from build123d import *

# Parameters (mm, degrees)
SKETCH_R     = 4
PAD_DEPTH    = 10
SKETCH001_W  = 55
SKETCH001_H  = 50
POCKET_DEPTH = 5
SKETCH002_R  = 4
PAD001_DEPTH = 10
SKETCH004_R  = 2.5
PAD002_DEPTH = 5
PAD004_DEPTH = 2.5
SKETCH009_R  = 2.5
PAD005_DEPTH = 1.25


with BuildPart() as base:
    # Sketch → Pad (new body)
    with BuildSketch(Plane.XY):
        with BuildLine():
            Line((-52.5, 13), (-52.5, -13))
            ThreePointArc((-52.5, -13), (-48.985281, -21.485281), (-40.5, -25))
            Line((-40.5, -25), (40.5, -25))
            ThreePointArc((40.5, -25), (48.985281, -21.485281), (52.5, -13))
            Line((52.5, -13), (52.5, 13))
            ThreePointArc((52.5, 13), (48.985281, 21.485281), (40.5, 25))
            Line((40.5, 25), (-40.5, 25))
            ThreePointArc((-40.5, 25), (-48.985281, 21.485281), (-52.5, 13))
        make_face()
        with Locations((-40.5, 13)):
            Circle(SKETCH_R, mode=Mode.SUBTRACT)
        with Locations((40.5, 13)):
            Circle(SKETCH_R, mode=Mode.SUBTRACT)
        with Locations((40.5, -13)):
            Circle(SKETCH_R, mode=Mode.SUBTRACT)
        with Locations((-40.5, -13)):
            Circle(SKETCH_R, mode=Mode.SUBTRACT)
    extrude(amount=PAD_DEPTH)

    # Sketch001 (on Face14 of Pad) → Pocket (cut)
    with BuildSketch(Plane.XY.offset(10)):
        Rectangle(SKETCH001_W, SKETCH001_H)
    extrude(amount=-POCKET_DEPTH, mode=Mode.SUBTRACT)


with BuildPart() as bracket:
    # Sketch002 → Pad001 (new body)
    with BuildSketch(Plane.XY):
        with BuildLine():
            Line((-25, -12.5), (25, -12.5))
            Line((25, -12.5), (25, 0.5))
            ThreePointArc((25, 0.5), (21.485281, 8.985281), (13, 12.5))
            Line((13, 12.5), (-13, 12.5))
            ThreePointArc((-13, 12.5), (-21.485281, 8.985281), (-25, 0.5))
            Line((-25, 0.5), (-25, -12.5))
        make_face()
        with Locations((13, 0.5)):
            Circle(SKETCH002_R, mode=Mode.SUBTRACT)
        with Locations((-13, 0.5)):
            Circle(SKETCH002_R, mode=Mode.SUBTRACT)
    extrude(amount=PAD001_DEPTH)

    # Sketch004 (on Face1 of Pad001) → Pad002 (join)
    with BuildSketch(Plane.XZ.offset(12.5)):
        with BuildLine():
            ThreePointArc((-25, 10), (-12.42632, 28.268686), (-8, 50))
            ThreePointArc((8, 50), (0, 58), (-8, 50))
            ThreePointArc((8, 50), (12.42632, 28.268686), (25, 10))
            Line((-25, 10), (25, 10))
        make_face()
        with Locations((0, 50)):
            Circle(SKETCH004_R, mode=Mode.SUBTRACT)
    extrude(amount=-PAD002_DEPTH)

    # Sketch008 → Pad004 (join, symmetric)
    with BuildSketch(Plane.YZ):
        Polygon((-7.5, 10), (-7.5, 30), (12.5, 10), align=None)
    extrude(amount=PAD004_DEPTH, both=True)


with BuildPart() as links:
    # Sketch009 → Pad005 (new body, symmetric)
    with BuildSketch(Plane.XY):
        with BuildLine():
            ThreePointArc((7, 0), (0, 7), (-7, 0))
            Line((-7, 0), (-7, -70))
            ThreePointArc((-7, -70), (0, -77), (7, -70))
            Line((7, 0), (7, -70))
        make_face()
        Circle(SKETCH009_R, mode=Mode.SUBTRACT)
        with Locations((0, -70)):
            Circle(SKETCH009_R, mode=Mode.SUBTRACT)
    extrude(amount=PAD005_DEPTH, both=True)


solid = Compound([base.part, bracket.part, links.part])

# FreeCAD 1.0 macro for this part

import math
import FreeCAD as App
import Part
import Sketcher
from FreeCAD import Vector
Q = App.Units.Quantity


def add_polygon(sketch, points):
    """Adds a closed chain of lines whose ends are joined by coincident constraints."""
    first, n = sketch.GeometryCount, len(points)
    for a, b in zip(points, points[1:] + points[:1]):
        sketch.addGeometry(Part.LineSegment(App.Vector(*a, 0), App.Vector(*b, 0)), False)
    for i in range(n):
        sketch.addConstraint(Sketcher.Constraint("Coincident", first + i, 2, first + (i + 1) % n, 1))

doc = App.newDocument("Part")
body = doc.addObject("PartDesign::Body", "Body")

# Sketch on XY plane
sketch1 = body.newObject("Sketcher::SketchObject", "Sketch")
sketch1.AttachmentSupport = (doc.getObject("XY_Plane"), [""])
sketch1.MapMode = "FlatFace"
sketch1.addGeometry([
    Part.LineSegment(Vector(-52.5, 13, 0), Vector(-52.5, -13, 0)),  # 0
    Part.ArcOfCircle(Part.Circle(Vector(-40.499999, -12.999999, 0), Vector(0, 0, 1), 12.000001), math.radians(-179.999994), math.radians(-90.000006)),  # 1
    Part.LineSegment(Vector(-40.5, -25, 0), Vector(40.5, -25, 0)),  # 2
    Part.ArcOfCircle(Part.Circle(Vector(40.499999, -12.999999, 0), Vector(0, 0, 1), 12.000001), math.radians(-89.999994), math.radians(-0.000006)),  # 3
    Part.LineSegment(Vector(52.5, -13, 0), Vector(52.5, 13, 0)),  # 4
    Part.ArcOfCircle(Part.Circle(Vector(40.499999, 12.999999, 0), Vector(0, 0, 1), 12.000001), math.radians(0.000006), math.radians(89.999994)),  # 5
    Part.LineSegment(Vector(40.5, 25, 0), Vector(-40.5, 25, 0)),  # 6
    Part.ArcOfCircle(Part.Circle(Vector(-40.499999, 12.999999, 0), Vector(0, 0, 1), 12.000001), math.radians(90.000006), math.radians(179.999994)),  # 7
    Part.Circle(Vector(-40.5, -13, 0), Vector(0, 0, 1), 4),  # 8
    Part.Circle(Vector(40.5, -13, 0), Vector(0, 0, 1), 4),  # 9
    Part.Circle(Vector(-40.5, 13, 0), Vector(0, 0, 1), 4),  # 10
    Part.Circle(Vector(40.5, 13, 0), Vector(0, 0, 1), 4),  # 11
], False)
sketch1.addConstraint([
    Sketcher.Constraint("Tangent", 0, 2, 1, 1),
    Sketcher.Constraint("Tangent", 1, 2, 2, 1),
    Sketcher.Constraint("Tangent", 2, 2, 3, 1),
    Sketcher.Constraint("Tangent", 3, 2, 4, 1),
    Sketcher.Constraint("Tangent", 4, 2, 5, 1),
    Sketcher.Constraint("Tangent", 5, 2, 6, 1),
    Sketcher.Constraint("Tangent", 6, 2, 7, 1),
    Sketcher.Constraint("Tangent", 7, 2, 0, 1),
    Sketcher.Constraint("Vertical", 0),
    Sketcher.Constraint("Horizontal", 2),
    Sketcher.Constraint("Vertical", 4),
    Sketcher.Constraint("Horizontal", 6),
    Sketcher.Constraint("Coincident", 8, 3, 1, 3),
    Sketcher.Constraint("Coincident", 9, 3, 3, 3),
    Sketcher.Constraint("Coincident", 10, 3, 7, 3),
    Sketcher.Constraint("Coincident", 11, 3, 5, 3),
    Sketcher.Constraint("Equal", 1, 3),
    Sketcher.Constraint("Equal", 3, 5),
    Sketcher.Constraint("Equal", 5, 7),
    Sketcher.Constraint("Equal", 8, 9),
    Sketcher.Constraint("Equal", 9, 10),
    Sketcher.Constraint("Equal", 10, 11),
    Sketcher.Constraint("Symmetric", 1, 3, 5, 3, -1, 1),
    Sketcher.Constraint("Diameter", 8, Q("8 mm")),
    Sketcher.Constraint("Radius", 1, Q("12.000001 mm")),
    Sketcher.Constraint("DistanceX", 2, 1, 2, 2, Q("81 mm")),
    Sketcher.Constraint("DistanceY", 0, 2, 0, 1, Q("26 mm")),
])
pad1 = body.newObject("PartDesign::Pad", "Pad")
pad1.Profile = sketch1
pad1.Length = 10

# Sketch on XY plane
sketch2 = body.newObject("Sketcher::SketchObject", "Sketch001")
sketch2.AttachmentSupport = (doc.getObject("XY_Plane"), [""])
sketch2.MapMode = "FlatFace"
sketch2.AttachmentOffset = App.Placement(Vector(0, 0, 10), App.Rotation())
add_polygon(sketch2, [(-27.5, 25), (-27.5, -25), (27.5, -25), (27.5, 25)])  # lines 0-3
sketch2.addConstraint([
    Sketcher.Constraint("Vertical", 0),
    Sketcher.Constraint("Horizontal", 1),
    Sketcher.Constraint("Vertical", 2),
    Sketcher.Constraint("Horizontal", 3),
    Sketcher.Constraint("Symmetric", 0, 2, 2, 2, -1, 1),
    Sketcher.Constraint("DistanceX", 1, 1, 1, 2, Q("55 mm")),
    Sketcher.Constraint("DistanceY", 0, 2, 0, 1, Q("50 mm")),
])
pocket1 = body.newObject("PartDesign::Pocket", "Pocket")
pocket1.Profile = sketch2
pocket1.Length = 5
body2 = doc.addObject("PartDesign::Body", "Body001")

# Sketch on XY plane
sketch3 = body2.newObject("Sketcher::SketchObject", "Sketch002")
sketch3.AttachmentSupport = (doc.getObject("XY_Plane001"), [""])
sketch3.MapMode = "FlatFace"
sketch3.addGeometry([
    Part.LineSegment(Vector(-25, -12.5, 0), Vector(25, -12.5, 0)),  # 0
    Part.LineSegment(Vector(25, -12.5, 0), Vector(25, 0.5, 0)),  # 1
    Part.ArcOfCircle(Part.Circle(Vector(12.999999, 0.499999, 0), Vector(0, 0, 1), 12.000001), math.radians(0.000006), math.radians(89.999994)),  # 2
    Part.LineSegment(Vector(13, 12.5, 0), Vector(-13, 12.5, 0)),  # 3
    Part.ArcOfCircle(Part.Circle(Vector(-12.999999, 0.499999, 0), Vector(0, 0, 1), 12.000001), math.radians(90.000006), math.radians(179.999994)),  # 4
    Part.LineSegment(Vector(-25, 0.5, 0), Vector(-25, -12.5, 0)),  # 5
    Part.Circle(Vector(-13, 0.5, 0), Vector(0, 0, 1), 4),  # 6
    Part.Circle(Vector(13, 0.5, 0), Vector(0, 0, 1), 4),  # 7
], False)
sketch3.addConstraint([
    Sketcher.Constraint("Coincident", 0, 2, 1, 1),
    Sketcher.Constraint("Tangent", 1, 2, 2, 1),
    Sketcher.Constraint("Tangent", 2, 2, 3, 1),
    Sketcher.Constraint("Tangent", 3, 2, 4, 1),
    Sketcher.Constraint("Tangent", 4, 2, 5, 1),
    Sketcher.Constraint("Coincident", 5, 2, 0, 1),
    Sketcher.Constraint("Horizontal", 0),
    Sketcher.Constraint("Vertical", 1),
    Sketcher.Constraint("Horizontal", 3),
    Sketcher.Constraint("Vertical", 5),
    Sketcher.Constraint("Coincident", 6, 3, 4, 3),
    Sketcher.Constraint("Coincident", 7, 3, 2, 3),
    Sketcher.Constraint("Equal", 2, 4),
    Sketcher.Constraint("Equal", 6, 7),
    Sketcher.Constraint("Diameter", 6, Q("8 mm")),
    Sketcher.Constraint("Radius", 2, Q("12.000001 mm")),
    Sketcher.Constraint("DistanceX", 0, 1, 0, 2, Q("50 mm")),
    Sketcher.Constraint("DistanceY", 1, 1, 1, 2, Q("13 mm")),
    Sketcher.Constraint("DistanceX", -1, 1, 2, 3, Q("12.999999 mm")),
    Sketcher.Constraint("DistanceY", -1, 1, 2, 3, Q("0.499999 mm")),
])
pad2 = body2.newObject("PartDesign::Pad", "Pad001")
pad2.Profile = sketch3
pad2.Length = 10

# Sketch on XZ plane
sketch4 = body2.newObject("Sketcher::SketchObject", "Sketch003")
sketch4.AttachmentSupport = (doc.getObject("XZ_Plane001"), [""])
sketch4.MapMode = "FlatFace"
sketch4.AttachmentOffset = App.Placement(Vector(0, 0, 12.5), App.Rotation())
sketch4.addGeometry([
    Part.ArcOfCircle(Part.Circle(Vector(-63.558818, 49.999998, 0), Vector(0, 0, 1), 55.558818), math.radians(-46.050986), math.radians(0.000002)),  # 0
    Part.LineSegment(Vector(-25, 10, 0), Vector(25, 10, 0)),  # 1
    Part.ArcOfCircle(Part.Circle(Vector(63.558818, 49.999998, 0), Vector(0, 0, 1), 55.558818), math.radians(179.999998), math.radians(226.050986)),  # 2
    Part.ArcOfCircle(Part.Circle(Vector(0, 50, 0), Vector(0, 0, 1), 8), math.radians(0), math.radians(180)),  # 3
    Part.Circle(Vector(0, 50, 0), Vector(0, 0, 1), 2.5),  # 4
], False)
sketch4.addConstraint([
    Sketcher.Constraint("Coincident", 0, 1, 1, 1),
    Sketcher.Constraint("Coincident", 1, 2, 2, 2),
    Sketcher.Constraint("Tangent", 2, 1, 3, 1),
    Sketcher.Constraint("Tangent", 3, 2, 0, 2),
    Sketcher.Constraint("Horizontal", 1),
    Sketcher.Constraint("Coincident", 4, 3, 3, 3),
    Sketcher.Constraint("Equal", 0, 2),
    Sketcher.Constraint("Symmetric", 0, 3, 2, 3, -2),
    Sketcher.Constraint("Horizontal", 4, 3, 2, 1),
    Sketcher.Constraint("Diameter", 4, Q("5 mm")),
    Sketcher.Constraint("Radius", 3, Q("8 mm")),
    Sketcher.Constraint("DistanceX", 1, 1, 1, 2, Q("50 mm")),
    Sketcher.Constraint("DistanceY", -1, 1, 3, 3, Q("50 mm")),
    Sketcher.Constraint("DistanceY", -1, 1, 0, 1, Q("10 mm")),
])
pad3 = body2.newObject("PartDesign::Pad", "Pad002")
pad3.Profile = sketch4
pad3.Length = 5
pad3.Reversed = True

# Sketch on YZ plane
sketch5 = body2.newObject("Sketcher::SketchObject", "Sketch004")
sketch5.AttachmentSupport = (doc.getObject("YZ_Plane001"), [""])
sketch5.MapMode = "FlatFace"
add_polygon(sketch5, [(-7.5, 30), (-7.5, 10), (12.5, 10)])  # lines 0-2
sketch5.addConstraint([
    Sketcher.Constraint("Vertical", 0),
    Sketcher.Constraint("Horizontal", 1),
    Sketcher.Constraint("Equal", 1, 0),
    Sketcher.Constraint("DistanceX", 1, 1, 1, 2, Q("20 mm")),
    Sketcher.Constraint("DistanceY", -1, 1, 0, 2, Q("10 mm")),
    Sketcher.Constraint("DistanceX", 0, 2, -1, 1, Q("7.5 mm")),
])
pad4 = body2.newObject("PartDesign::Pad", "Pad003")
pad4.Profile = sketch5
pad4.Length = 5
pad4.Midplane = True
body3 = doc.addObject("PartDesign::Body", "Body002")

# Sketch on XY plane
sketch6 = body3.newObject("Sketcher::SketchObject", "Sketch005")
sketch6.AttachmentSupport = (doc.getObject("XY_Plane002"), [""])
sketch6.MapMode = "FlatFace"
sketch6.addGeometry([
    Part.ArcOfCircle(Part.Circle(Vector(0, 0, 0), Vector(0, 0, 1), 7), math.radians(0), math.radians(180)),  # 0
    Part.LineSegment(Vector(-7, 0, 0), Vector(-7, -70, 0)),  # 1
    Part.ArcOfCircle(Part.Circle(Vector(0, -70, 0), Vector(0, 0, 1), 7), math.radians(180), math.radians(360)),  # 2
    Part.LineSegment(Vector(7, -70, 0), Vector(7, 0, 0)),  # 3
    Part.Circle(Vector(0, -70, 0), Vector(0, 0, 1), 2.5),  # 4
    Part.Circle(Vector(0, 0, 0), Vector(0, 0, 1), 2.5),  # 5
], False)
sketch6.addConstraint([
    Sketcher.Constraint("Tangent", 0, 2, 1, 1),
    Sketcher.Constraint("Tangent", 1, 2, 2, 1),
    Sketcher.Constraint("Tangent", 2, 2, 3, 1),
    Sketcher.Constraint("Tangent", 3, 2, 0, 1),
    Sketcher.Constraint("Vertical", 1),
    Sketcher.Constraint("Vertical", 3),
    Sketcher.Constraint("Coincident", 0, 3, -1, 1),
    Sketcher.Constraint("Coincident", 5, 3, -1, 1),
    Sketcher.Constraint("Coincident", 4, 3, 2, 3),
    Sketcher.Constraint("Equal", 4, 5),
    Sketcher.Constraint("Diameter", 4, Q("5 mm")),
    Sketcher.Constraint("Radius", 0, Q("7 mm")),
    Sketcher.Constraint("DistanceY", 1, 2, 1, 1, Q("70 mm")),
])
pad5 = body3.newObject("PartDesign::Pad", "Pad004")
pad5.Profile = sketch6
pad5.Length = 2.5
pad5.Midplane = True

doc.recompute()
